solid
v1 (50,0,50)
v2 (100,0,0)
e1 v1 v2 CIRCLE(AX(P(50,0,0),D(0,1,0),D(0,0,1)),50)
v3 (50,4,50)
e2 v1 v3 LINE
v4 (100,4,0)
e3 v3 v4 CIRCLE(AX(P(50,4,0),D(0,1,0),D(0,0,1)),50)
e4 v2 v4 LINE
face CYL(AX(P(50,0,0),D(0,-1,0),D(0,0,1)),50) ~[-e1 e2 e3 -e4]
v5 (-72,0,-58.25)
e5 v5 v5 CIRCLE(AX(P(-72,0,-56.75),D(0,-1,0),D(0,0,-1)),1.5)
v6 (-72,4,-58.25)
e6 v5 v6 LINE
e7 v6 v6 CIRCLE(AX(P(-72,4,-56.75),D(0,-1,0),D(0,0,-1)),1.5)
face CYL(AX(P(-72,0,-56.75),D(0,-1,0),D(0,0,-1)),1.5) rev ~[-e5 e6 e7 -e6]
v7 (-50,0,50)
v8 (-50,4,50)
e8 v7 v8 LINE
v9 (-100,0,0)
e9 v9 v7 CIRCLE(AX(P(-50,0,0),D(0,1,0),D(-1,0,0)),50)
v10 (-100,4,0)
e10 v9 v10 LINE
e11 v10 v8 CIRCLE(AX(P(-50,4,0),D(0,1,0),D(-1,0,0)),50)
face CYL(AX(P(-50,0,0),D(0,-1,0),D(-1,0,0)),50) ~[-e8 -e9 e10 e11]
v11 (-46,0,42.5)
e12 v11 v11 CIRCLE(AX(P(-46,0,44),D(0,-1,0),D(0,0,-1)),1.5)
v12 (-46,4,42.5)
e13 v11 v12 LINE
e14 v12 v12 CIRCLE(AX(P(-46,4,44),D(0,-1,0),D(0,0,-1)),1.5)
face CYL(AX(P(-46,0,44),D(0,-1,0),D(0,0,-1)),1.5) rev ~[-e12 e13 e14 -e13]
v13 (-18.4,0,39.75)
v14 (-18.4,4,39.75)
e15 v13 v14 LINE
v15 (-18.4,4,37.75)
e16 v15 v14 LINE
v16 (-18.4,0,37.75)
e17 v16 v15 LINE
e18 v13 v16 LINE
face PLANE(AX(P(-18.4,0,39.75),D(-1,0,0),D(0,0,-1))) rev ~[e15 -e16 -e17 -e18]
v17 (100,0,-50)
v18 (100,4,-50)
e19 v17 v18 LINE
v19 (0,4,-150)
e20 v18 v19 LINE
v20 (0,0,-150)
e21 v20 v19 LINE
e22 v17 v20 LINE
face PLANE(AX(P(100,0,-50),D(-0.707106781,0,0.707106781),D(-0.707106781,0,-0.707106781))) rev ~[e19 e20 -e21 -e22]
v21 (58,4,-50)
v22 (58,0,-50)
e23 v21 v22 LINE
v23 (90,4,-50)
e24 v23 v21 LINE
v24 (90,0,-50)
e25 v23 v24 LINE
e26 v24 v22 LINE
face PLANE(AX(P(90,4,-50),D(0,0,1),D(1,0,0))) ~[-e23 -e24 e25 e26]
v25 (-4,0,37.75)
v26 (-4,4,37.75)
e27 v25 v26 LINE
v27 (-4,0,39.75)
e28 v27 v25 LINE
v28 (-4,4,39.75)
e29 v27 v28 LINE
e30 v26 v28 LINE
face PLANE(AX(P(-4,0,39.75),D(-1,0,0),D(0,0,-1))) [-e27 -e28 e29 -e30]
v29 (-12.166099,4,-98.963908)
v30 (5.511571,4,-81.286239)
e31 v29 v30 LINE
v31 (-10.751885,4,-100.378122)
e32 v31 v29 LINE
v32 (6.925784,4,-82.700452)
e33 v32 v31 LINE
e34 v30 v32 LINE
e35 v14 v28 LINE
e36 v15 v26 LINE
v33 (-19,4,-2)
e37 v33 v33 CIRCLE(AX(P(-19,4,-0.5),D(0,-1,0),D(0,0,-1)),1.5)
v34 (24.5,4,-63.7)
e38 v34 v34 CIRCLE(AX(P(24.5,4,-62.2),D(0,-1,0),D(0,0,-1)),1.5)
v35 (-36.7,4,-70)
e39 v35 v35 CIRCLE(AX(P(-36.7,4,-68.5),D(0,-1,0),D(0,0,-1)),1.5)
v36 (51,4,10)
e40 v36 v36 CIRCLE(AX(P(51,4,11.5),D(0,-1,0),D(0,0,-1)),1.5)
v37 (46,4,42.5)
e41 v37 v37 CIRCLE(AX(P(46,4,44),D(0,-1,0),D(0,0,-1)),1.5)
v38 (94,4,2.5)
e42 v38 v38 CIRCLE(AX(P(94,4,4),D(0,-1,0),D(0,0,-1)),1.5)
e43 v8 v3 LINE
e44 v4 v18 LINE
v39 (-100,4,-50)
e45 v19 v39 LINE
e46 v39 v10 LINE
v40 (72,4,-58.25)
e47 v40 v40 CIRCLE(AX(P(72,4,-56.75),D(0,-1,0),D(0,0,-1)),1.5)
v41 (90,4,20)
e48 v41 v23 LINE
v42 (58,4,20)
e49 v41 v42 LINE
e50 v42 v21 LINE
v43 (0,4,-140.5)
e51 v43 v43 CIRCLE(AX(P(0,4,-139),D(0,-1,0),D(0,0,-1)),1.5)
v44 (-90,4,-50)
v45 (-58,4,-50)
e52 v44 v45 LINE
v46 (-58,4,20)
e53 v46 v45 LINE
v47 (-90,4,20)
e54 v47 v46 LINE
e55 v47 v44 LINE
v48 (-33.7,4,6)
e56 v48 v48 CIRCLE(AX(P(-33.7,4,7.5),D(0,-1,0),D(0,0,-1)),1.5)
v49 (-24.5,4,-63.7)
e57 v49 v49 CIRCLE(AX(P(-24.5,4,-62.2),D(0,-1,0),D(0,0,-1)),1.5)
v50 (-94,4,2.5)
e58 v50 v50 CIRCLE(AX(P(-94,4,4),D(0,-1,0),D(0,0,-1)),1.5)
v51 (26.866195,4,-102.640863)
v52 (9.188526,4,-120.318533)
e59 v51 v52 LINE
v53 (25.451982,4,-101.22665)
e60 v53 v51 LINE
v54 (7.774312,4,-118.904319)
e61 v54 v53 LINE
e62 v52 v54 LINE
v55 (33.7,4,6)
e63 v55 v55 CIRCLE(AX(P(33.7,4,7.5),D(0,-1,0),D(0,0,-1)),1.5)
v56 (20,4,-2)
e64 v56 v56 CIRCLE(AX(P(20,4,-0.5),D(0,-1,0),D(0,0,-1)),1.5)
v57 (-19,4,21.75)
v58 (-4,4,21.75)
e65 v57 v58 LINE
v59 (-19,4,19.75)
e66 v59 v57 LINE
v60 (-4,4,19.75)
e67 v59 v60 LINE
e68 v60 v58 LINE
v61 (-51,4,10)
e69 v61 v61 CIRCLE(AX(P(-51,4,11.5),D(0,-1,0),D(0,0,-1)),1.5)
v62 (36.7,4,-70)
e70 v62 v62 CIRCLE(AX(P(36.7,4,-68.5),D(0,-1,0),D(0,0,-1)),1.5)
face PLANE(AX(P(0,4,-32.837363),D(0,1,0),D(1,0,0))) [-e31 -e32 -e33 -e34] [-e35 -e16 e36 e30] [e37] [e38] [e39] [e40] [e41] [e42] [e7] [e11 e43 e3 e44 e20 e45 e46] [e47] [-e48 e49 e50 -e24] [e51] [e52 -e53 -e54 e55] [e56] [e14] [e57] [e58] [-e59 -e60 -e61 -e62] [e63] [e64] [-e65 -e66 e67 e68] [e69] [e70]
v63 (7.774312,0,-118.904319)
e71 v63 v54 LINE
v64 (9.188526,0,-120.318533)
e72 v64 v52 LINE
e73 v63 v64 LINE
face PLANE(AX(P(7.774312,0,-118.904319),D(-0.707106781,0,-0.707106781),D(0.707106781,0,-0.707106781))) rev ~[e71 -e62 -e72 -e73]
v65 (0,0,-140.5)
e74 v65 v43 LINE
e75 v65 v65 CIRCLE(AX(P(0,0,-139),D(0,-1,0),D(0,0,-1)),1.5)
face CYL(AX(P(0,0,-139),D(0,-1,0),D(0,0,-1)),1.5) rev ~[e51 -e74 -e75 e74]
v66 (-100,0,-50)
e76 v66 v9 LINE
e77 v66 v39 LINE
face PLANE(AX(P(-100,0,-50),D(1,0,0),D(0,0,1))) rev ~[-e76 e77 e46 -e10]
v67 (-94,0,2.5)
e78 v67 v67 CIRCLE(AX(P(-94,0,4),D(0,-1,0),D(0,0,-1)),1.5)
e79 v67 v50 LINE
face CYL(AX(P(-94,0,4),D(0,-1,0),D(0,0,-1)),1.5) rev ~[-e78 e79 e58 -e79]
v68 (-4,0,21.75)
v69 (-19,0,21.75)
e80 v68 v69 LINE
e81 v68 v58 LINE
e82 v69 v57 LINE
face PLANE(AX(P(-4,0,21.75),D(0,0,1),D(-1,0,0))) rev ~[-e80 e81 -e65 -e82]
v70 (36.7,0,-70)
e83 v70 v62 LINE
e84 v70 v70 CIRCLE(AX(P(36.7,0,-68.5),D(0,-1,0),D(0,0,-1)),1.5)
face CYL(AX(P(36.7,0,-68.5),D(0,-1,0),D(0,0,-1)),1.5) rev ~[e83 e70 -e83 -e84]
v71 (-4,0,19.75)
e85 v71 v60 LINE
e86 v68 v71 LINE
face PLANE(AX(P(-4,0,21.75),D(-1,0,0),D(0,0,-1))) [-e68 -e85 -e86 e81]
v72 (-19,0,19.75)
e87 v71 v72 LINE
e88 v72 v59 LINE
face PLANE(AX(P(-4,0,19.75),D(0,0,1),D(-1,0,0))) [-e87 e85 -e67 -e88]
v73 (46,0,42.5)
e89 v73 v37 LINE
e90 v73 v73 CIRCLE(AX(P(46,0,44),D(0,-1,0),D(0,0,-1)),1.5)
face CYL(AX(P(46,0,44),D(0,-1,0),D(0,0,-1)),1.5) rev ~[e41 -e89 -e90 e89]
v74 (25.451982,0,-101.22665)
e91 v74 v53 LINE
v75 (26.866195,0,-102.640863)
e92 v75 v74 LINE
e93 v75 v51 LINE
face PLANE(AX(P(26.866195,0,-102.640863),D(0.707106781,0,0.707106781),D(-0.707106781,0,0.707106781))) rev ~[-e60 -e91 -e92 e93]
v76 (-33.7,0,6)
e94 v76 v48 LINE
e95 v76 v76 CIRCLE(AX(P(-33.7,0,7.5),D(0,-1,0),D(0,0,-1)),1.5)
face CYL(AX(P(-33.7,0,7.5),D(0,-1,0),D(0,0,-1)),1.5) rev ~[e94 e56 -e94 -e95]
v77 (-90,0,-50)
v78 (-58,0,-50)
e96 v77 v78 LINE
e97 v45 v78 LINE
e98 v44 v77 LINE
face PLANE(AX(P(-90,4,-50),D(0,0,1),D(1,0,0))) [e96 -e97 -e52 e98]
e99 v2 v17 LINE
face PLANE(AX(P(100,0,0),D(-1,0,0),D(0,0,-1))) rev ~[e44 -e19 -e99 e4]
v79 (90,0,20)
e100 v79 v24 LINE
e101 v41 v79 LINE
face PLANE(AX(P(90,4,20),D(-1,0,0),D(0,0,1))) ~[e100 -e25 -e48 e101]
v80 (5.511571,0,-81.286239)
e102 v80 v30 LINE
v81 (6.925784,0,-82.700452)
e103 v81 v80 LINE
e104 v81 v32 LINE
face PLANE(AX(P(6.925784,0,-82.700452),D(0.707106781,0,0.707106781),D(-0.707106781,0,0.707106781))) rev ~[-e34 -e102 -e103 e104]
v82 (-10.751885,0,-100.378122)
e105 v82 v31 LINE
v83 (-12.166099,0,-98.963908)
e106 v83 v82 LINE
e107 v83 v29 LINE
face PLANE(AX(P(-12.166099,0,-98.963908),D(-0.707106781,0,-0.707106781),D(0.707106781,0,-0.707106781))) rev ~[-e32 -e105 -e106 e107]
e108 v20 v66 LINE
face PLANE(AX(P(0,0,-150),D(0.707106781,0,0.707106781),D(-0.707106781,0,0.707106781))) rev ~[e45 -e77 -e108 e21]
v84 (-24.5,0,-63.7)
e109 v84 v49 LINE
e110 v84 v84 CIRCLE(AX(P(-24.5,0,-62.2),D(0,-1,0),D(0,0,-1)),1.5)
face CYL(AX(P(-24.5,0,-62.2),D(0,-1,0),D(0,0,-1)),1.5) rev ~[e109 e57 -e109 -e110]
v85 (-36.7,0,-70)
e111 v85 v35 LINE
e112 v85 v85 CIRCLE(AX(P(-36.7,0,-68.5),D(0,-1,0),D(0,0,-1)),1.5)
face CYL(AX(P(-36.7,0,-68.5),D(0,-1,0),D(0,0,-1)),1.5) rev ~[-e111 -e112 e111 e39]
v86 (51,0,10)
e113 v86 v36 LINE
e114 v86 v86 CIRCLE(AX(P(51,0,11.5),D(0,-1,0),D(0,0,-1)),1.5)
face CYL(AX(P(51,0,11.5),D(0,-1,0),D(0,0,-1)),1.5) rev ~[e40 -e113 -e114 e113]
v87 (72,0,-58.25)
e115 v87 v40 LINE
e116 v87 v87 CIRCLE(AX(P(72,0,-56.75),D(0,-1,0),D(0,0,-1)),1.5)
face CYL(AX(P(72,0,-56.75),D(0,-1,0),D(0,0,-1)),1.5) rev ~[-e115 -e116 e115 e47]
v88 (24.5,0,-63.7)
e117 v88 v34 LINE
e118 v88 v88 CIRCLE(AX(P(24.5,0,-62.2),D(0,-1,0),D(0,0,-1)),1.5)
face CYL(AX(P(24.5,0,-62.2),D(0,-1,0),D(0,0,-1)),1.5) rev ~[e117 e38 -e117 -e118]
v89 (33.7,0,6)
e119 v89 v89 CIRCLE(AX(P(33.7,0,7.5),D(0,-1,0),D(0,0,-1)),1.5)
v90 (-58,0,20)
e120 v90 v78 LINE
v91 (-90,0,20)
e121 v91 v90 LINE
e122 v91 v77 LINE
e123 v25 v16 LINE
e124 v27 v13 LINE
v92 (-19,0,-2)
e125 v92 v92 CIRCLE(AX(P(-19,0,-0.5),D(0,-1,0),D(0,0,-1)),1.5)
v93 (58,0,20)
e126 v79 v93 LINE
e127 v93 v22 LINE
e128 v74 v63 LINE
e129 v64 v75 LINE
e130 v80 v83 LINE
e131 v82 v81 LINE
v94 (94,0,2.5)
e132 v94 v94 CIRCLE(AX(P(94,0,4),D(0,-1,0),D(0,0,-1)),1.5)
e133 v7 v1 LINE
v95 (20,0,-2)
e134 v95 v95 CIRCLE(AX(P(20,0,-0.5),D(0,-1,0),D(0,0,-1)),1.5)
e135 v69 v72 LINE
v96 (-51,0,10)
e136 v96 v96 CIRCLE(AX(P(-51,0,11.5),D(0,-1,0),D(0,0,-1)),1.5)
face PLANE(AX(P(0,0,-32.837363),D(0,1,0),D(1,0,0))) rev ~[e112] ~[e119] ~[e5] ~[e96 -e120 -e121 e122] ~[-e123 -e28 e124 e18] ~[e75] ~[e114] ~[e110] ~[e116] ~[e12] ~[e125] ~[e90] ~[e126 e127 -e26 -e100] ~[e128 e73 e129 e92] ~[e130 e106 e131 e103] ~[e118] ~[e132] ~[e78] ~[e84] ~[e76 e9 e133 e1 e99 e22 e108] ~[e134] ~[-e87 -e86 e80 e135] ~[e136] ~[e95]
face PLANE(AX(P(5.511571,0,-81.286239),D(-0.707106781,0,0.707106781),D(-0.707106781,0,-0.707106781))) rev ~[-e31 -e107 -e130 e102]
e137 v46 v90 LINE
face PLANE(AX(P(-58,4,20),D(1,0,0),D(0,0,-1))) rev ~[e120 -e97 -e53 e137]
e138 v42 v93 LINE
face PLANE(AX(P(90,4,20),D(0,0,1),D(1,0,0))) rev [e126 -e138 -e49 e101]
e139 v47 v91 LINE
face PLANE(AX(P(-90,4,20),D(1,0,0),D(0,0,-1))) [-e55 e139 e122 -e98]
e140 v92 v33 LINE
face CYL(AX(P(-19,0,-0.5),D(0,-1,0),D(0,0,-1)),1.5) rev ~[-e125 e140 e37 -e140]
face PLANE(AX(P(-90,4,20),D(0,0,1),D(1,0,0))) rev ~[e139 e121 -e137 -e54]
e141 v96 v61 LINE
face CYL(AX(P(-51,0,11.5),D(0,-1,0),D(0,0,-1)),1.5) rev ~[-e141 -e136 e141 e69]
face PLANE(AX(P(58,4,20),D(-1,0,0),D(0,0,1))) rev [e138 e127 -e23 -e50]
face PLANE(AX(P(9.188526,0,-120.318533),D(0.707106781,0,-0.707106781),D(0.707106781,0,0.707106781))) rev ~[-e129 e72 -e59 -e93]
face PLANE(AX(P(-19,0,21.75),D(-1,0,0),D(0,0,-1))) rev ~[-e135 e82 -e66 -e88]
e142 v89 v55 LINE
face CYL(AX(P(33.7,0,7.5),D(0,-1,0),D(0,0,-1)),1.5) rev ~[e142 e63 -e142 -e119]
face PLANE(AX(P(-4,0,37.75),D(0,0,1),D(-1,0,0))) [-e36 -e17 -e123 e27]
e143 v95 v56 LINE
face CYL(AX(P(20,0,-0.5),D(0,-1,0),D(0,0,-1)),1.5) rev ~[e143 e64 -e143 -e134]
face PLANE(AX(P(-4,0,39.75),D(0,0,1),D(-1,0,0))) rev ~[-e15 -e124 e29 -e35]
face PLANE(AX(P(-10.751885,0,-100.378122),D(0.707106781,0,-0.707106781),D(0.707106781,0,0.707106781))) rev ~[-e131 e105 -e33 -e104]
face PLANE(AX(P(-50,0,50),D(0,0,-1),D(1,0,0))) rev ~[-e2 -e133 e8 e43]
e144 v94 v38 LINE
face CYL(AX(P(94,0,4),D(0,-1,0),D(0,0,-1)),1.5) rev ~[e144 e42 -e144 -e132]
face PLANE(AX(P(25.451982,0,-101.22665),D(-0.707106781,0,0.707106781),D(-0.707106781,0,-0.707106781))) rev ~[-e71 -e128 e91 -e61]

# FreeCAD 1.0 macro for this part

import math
import FreeCAD as App
import Part
import Sketcher

V = App.Vector
Q = App.Units.Quantity

doc = App.newDocument("Part")
body = doc.addObject("PartDesign::Body", "Body")

# Sketch on XZ plane
sketch1 = doc.addObject("Sketcher::SketchObject", "Sketch")
body.addObject(sketch1)
sketch1.AttachmentSupport = (doc.XZ_Plane, [""])
sketch1.MapMode = "FlatFace"
sketch1.addGeometry([
    Part.LineSegment(V(-50, 50, 0), V(50, 50, 0)),  # 0
    Part.ArcOfCircle(Part.Circle(V(50, 0, 0), V(0, 0, 1), 50), math.radians(0), math.radians(90)),  # 1
    Part.LineSegment(V(100, 0, 0), V(100, -50, 0)),  # 2
    Part.LineSegment(V(100, -50, 0), V(0, -150, 0)),  # 3
    Part.LineSegment(V(0, -150, 0), V(-100, -50, 0)),  # 4
    Part.LineSegment(V(-100, -50, 0), V(-100, 0, 0)),  # 5
    Part.ArcOfCircle(Part.Circle(V(-50, 0, 0), V(0, 0, 1), 50), math.radians(90), math.radians(180)),  # 6
], False)
sketch1.addConstraint([
    Sketcher.Constraint("Tangent", 0, 2, 1, 2),
    Sketcher.Constraint("Tangent", 1, 1, 2, 1),
    Sketcher.Constraint("Coincident", 2, 2, 3, 1),
    Sketcher.Constraint("Coincident", 3, 2, 4, 1),
    Sketcher.Constraint("Coincident", 4, 2, 5, 1),
    Sketcher.Constraint("Tangent", 5, 2, 6, 2),
    Sketcher.Constraint("Tangent", 6, 1, 0, 1),
    Sketcher.Constraint("Horizontal", 0),
    Sketcher.Constraint("Vertical", 2),
    Sketcher.Constraint("Vertical", 5),
    Sketcher.Constraint("Equal", 1, 6),
    Sketcher.Constraint("Symmetric", 1, 3, 6, 3, -1, 1),
    Sketcher.Constraint("PointOnObject", 3, 2, -2),
    Sketcher.Constraint("Perpendicular", 3, 4),
    Sketcher.Constraint("Horizontal", 2, 2, 4, 2),
    Sketcher.Constraint("Radius", 1, 50.0),
    Sketcher.Constraint("DistanceX", 0, 1, 0, 2, 100.0),
    Sketcher.Constraint("DistanceY", 2, 2, 2, 1, 50.0),
])
pad1 = doc.addObject("PartDesign::Pad", "Pad")
body.addObject(pad1)
pad1.Profile = sketch1
pad1.Length = 4
pad1.Reversed = True

# Sketch on XZ plane
sketch2 = doc.addObject("Sketcher::SketchObject", "Sketch001")
body.addObject(sketch2)
sketch2.AttachmentSupport = (doc.XZ_Plane, [""])
sketch2.MapMode = "FlatFace"
sketch2.AttachmentOffset = App.Placement(V(0, 0, -4), App.Rotation())
sketch2.addGeometry([
    Part.LineSegment(V(-90, -50, 0), V(-90, 20, 0)),
    Part.LineSegment(V(-90, 20, 0), V(-58, 20, 0)),
    Part.LineSegment(V(-58, 20, 0), V(-58, -50, 0)),
    Part.LineSegment(V(-58, -50, 0), V(-90, -50, 0)),
], False)
sketch2.addConstraint([
    Sketcher.Constraint("Coincident", 0, 2, 1, 1),
    Sketcher.Constraint("Coincident", 1, 2, 2, 1),
    Sketcher.Constraint("Coincident", 2, 2, 3, 1),
    Sketcher.Constraint("Coincident", 3, 2, 0, 1),
    Sketcher.Constraint("Vertical", 0),
    Sketcher.Constraint("Horizontal", 1),
    Sketcher.Constraint("Vertical", 2),
    Sketcher.Constraint("Horizontal", 3),
    Sketcher.Constraint("DistanceX", 1, 1, 1, 2, 32.0),
    Sketcher.Constraint("DistanceY", 0, 1, 0, 2, 70.0),
    Sketcher.Constraint("DistanceX", 0, 2, -1, 1, 90.0),
    Sketcher.Constraint("DistanceY", -1, 1, 0, 2, 20.0),
])
pocket1 = doc.addObject("PartDesign::Pocket", "Pocket")
body.addObject(pocket1)
pocket1.Profile = sketch2
pocket1.Length = 10
pocket1.Reversed = True

# Sketch on XZ plane
sketch3 = doc.addObject("Sketcher::SketchObject", "Sketch002")
body.addObject(sketch3)
sketch3.AttachmentSupport = (doc.XZ_Plane, [""])
sketch3.MapMode = "FlatFace"
sketch3.addGeometry(Part.Circle(V(-46, 44, 0), V(0, 0, 1), 1.5), False)
sketch3.addConstraint([
    Sketcher.Constraint("Diameter", 0, 3.0),
    Sketcher.Constraint("DistanceX", 0, 3, -1, 1, 46.0),
    Sketcher.Constraint("DistanceY", -1, 1, 0, 3, 44.0),
])
pocket2 = doc.addObject("PartDesign::Pocket", "Pocket001")
body.addObject(pocket2)
pocket2.Profile = sketch3
pocket2.Type = "ThroughAll"
doc.recompute()

mirrored = doc.addObject("PartDesign::Mirrored", "Mirrored")
body.addObject(mirrored)
mirrored.Originals = [pocket1]
mirrored.MirrorPlane = (doc.YZ_Plane, [""])
body.Tip = mirrored

# Sketch on XZ plane
sketch4 = doc.addObject("Sketcher::SketchObject", "Sketch003")
body.addObject(sketch4)
sketch4.AttachmentSupport = (doc.XZ_Plane, [""])
sketch4.MapMode = "FlatFace"
sketch4.addGeometry([
    Part.Circle(V(46, 44, 0), V(0, 0, 1), 1.5),  # 0
    Part.Circle(V(94, 4, 0), V(0, 0, 1), 1.5),  # 1
    Part.Circle(V(-94, 4, 0), V(0, 0, 1), 1.5),  # 2
    Part.Circle(V(0, -139, 0), V(0, 0, 1), 1.5),  # 3
    Part.Circle(V(-24.5, -62.2, 0), V(0, 0, 1), 1.5),  # 4
    Part.Circle(V(24.5, -62.2, 0), V(0, 0, 1), 1.5),  # 5
    Part.Circle(V(20, -0.5, 0), V(0, 0, 1), 1.5),  # 6
    Part.Circle(V(-19, -0.5, 0), V(0, 0, 1), 1.5),  # 7
    Part.LineSegment(V(-10.751885, -100.378122, 0), V(6.925784, -82.700452, 0)),  # 8
    Part.LineSegment(V(6.925784, -82.700452, 0), V(5.511571, -81.286239, 0)),  # 9
    Part.LineSegment(V(5.511571, -81.286239, 0), V(-12.166099, -98.963908, 0)),  # 10
    Part.LineSegment(V(-12.166099, -98.963908, 0), V(-10.751885, -100.378122, 0)),  # 11
    Part.LineSegment(V(25.451982, -101.22665, 0), V(7.774312, -118.904319, 0)),  # 12
    Part.LineSegment(V(7.774312, -118.904319, 0), V(9.188526, -120.318533, 0)),  # 13
    Part.LineSegment(V(9.188526, -120.318533, 0), V(26.866195, -102.640863, 0)),  # 14
    Part.LineSegment(V(26.866195, -102.640863, 0), V(25.451982, -101.22665, 0)),  # 15
    Part.LineSegment(V(-4, 19.75, 0), V(-4, 21.75, 0)),  # 16
    Part.LineSegment(V(-4, 21.75, 0), V(-19, 21.75, 0)),  # 17
    Part.LineSegment(V(-19, 21.75, 0), V(-19, 19.75, 0)),  # 18
    Part.LineSegment(V(-19, 19.75, 0), V(-4, 19.75, 0)),  # 19
    Part.LineSegment(V(-4, 37.75, 0), V(-4, 39.75, 0)),  # 20
    Part.LineSegment(V(-4, 39.75, 0), V(-18.4, 39.75, 0)),  # 21
    Part.LineSegment(V(-18.4, 39.75, 0), V(-18.4, 37.75, 0)),  # 22
    Part.LineSegment(V(-18.4, 37.75, 0), V(-4, 37.75, 0)),  # 23
], False)
sketch4.addConstraint([
    Sketcher.Constraint("Coincident", 8, 2, 9, 1),
    Sketcher.Constraint("Coincident", 9, 2, 10, 1),
    Sketcher.Constraint("Coincident", 10, 2, 11, 1),
    Sketcher.Constraint("Coincident", 11, 2, 8, 1),
    Sketcher.Constraint("Coincident", 12, 2, 13, 1),
    Sketcher.Constraint("Coincident", 13, 2, 14, 1),
    Sketcher.Constraint("Coincident", 14, 2, 15, 1),
    Sketcher.Constraint("Coincident", 15, 2, 12, 1),
    Sketcher.Constraint("Coincident", 16, 2, 17, 1),
    Sketcher.Constraint("Coincident", 17, 2, 18, 1),
    Sketcher.Constraint("Coincident", 18, 2, 19, 1),
    Sketcher.Constraint("Coincident", 19, 2, 16, 1),
    Sketcher.Constraint("Coincident", 20, 2, 21, 1),
    Sketcher.Constraint("Coincident", 21, 2, 22, 1),
    Sketcher.Constraint("Coincident", 22, 2, 23, 1),
    Sketcher.Constraint("Coincident", 23, 2, 20, 1),
    Sketcher.Constraint("Vertical", 16),
    Sketcher.Constraint("Horizontal", 17),
    Sketcher.Constraint("Vertical", 18),
    Sketcher.Constraint("Horizontal", 19),
    Sketcher.Constraint("Vertical", 20),
    Sketcher.Constraint("Horizontal", 21),
    Sketcher.Constraint("Vertical", 22),
    Sketcher.Constraint("Horizontal", 23),
    Sketcher.Constraint("Equal", 0, 1),
    Sketcher.Constraint("Equal", 1, 2),
    Sketcher.Constraint("Equal", 2, 3),
    Sketcher.Constraint("Equal", 3, 4),
    Sketcher.Constraint("Equal", 4, 5),
    Sketcher.Constraint("Equal", 5, 6),
    Sketcher.Constraint("Equal", 6, 7),
    Sketcher.Constraint("Symmetric", 1, 3, 2, 3, -2),
    Sketcher.Constraint("Symmetric", 4, 3, 5, 3, -2),
    Sketcher.Constraint("PointOnObject", 3, 3, -2),
    Sketcher.Constraint("Perpendicular", 8, 9),
    Sketcher.Constraint("Perpendicular", 9, 10),
    Sketcher.Constraint("Perpendicular", 10, 11),
    Sketcher.Constraint("Perpendicular", 11, 12),
    Sketcher.Constraint("Perpendicular", 12, 13),
    Sketcher.Constraint("Perpendicular", 13, 14),
    Sketcher.Constraint("Perpendicular", 14, 15),
    Sketcher.Constraint("Horizontal", 6, 3, 7, 3),
    Sketcher.Constraint("Vertical", 7, 3, 17, 2),
    Sketcher.Constraint("Vertical", 19, 2, 20, 2),
    Sketcher.Constraint("Equal", 18, 20),
    Sketcher.Constraint("Equal", 10, 12),
    Sketcher.Constraint("Equal", 11, 13),
    Sketcher.Constraint("Diameter", 0, 3.0),
    Sketcher.Constraint("DistanceX", 17, 2, 17, 1, 15.0),
    Sketcher.Constraint("DistanceY", 16, 1, 16, 2, 2.0),
    Sketcher.Constraint("Angle", 8, Q("45 deg")),
    Sketcher.Constraint("Distance", 8, 25.0),
    Sketcher.Constraint("Distance", 9, 2.0),
    Sketcher.Constraint("DistanceX", 21, 2, 21, 1, 14.4),
    Sketcher.Constraint("DistanceX", -1, 1, 0, 3, 46.0),
    Sketcher.Constraint("DistanceY", -1, 1, 0, 3, 44.0),
    Sketcher.Constraint("DistanceX", -1, 1, 1, 3, 94.0),
    Sketcher.Constraint("DistanceY", -1, 1, 1, 3, 4.0),
    Sketcher.Constraint("DistanceY", 3, 3, -1, 1, 139.0),
    Sketcher.Constraint("DistanceX", -1, 1, 6, 3, 20.0),
    Sketcher.Constraint("DistanceX", 7, 3, -1, 1, 19.0),
    Sketcher.Constraint("DistanceX", 4, 3, 5, 3, 49.0),
    Sketcher.Constraint("DistanceY", 16, 2, 20, 2, 18.0),
    Sketcher.Constraint("DistanceY", 4, 3, -1, 1, 62.2),
    Sketcher.Constraint("DistanceY", 6, 3, -1, 1, 0.5),
    Sketcher.Constraint("DistanceY", -1, 1, 16, 2, 21.75),
    Sketcher.Constraint("DistanceX", 10, 2, -1, 1, 12.166099),
    Sketcher.Constraint("DistanceY", 9, 2, -1, 1, 81.286239),
    Sketcher.Constraint("DistanceY", 12, 2, -1, 1, 118.904319),
    Sketcher.Constraint("DistanceX", -1, 1, 15, 2, 25.451982),
])
pocket3 = doc.addObject("PartDesign::Pocket", "Pocket002")
body.addObject(pocket3)
pocket3.Profile = sketch4
pocket3.Length = 10

# Sketch on XZ plane
sketch5 = doc.addObject("Sketcher::SketchObject", "Sketch004")
body.addObject(sketch5)
sketch5.AttachmentSupport = (doc.XZ_Plane, [""])
sketch5.MapMode = "FlatFace"
sketch5.addGeometry([
    Part.Circle(V(-51, 11.5, 0), V(0, 0, 1), 1.5),  # 0
    Part.Circle(V(-33.7, 7.5, 0), V(0, 0, 1), 1.5),  # 1
    Part.Circle(V(33.7, 7.5, 0), V(0, 0, 1), 1.5),  # 2
    Part.Circle(V(51, 11.5, 0), V(0, 0, 1), 1.5),  # 3
    Part.Circle(V(-36.7, -68.5, 0), V(0, 0, 1), 1.5),  # 4
    Part.Circle(V(36.7, -68.5, 0), V(0, 0, 1), 1.5),  # 5
    Part.Circle(V(72, -56.75, 0), V(0, 0, 1), 1.5),  # 6
    Part.Circle(V(-72, -56.75, 0), V(0, 0, 1), 1.5),  # 7
], False)
sketch5.addConstraint([
    Sketcher.Constraint("Equal", 0, 1),
    Sketcher.Constraint("Equal", 1, 2),
    Sketcher.Constraint("Equal", 2, 3),
    Sketcher.Constraint("Equal", 3, 4),
    Sketcher.Constraint("Equal", 4, 5),
    Sketcher.Constraint("Equal", 5, 6),
    Sketcher.Constraint("Equal", 6, 7),
    Sketcher.Constraint("Symmetric", 1, 3, 2, 3, -2),
    Sketcher.Constraint("Symmetric", 0, 3, 3, 3, -2),
    Sketcher.Constraint("Symmetric", 4, 3, 5, 3, -2),
    Sketcher.Constraint("Symmetric", 6, 3, 7, 3, -2),
    Sketcher.Constraint("Diameter", 0, 3.0),
    Sketcher.Constraint("DistanceX", 0, 3, -1, 1, 51.0),
    Sketcher.Constraint("DistanceX", -1, 1, 6, 3, 72.0),
    Sketcher.Constraint("DistanceY", 1, 3, 0, 3, 4.0),
    Sketcher.Constraint("DistanceX", 4, 3, 1, 3, 3.0),
    Sketcher.Constraint("DistanceY", 4, 3, 1, 3, 76.0),
    Sketcher.Constraint("DistanceY", -1, 1, 0, 3, 11.5),
    Sketcher.Constraint("DistanceX", 1, 3, -1, 1, 33.7),
    Sketcher.Constraint("DistanceY", 6, 3, -1, 1, 56.75),
])
pocket4 = doc.addObject("PartDesign::Pocket", "Pocket003")
body.addObject(pocket4)
pocket4.Profile = sketch5
pocket4.Length = 10

doc.recompute()
